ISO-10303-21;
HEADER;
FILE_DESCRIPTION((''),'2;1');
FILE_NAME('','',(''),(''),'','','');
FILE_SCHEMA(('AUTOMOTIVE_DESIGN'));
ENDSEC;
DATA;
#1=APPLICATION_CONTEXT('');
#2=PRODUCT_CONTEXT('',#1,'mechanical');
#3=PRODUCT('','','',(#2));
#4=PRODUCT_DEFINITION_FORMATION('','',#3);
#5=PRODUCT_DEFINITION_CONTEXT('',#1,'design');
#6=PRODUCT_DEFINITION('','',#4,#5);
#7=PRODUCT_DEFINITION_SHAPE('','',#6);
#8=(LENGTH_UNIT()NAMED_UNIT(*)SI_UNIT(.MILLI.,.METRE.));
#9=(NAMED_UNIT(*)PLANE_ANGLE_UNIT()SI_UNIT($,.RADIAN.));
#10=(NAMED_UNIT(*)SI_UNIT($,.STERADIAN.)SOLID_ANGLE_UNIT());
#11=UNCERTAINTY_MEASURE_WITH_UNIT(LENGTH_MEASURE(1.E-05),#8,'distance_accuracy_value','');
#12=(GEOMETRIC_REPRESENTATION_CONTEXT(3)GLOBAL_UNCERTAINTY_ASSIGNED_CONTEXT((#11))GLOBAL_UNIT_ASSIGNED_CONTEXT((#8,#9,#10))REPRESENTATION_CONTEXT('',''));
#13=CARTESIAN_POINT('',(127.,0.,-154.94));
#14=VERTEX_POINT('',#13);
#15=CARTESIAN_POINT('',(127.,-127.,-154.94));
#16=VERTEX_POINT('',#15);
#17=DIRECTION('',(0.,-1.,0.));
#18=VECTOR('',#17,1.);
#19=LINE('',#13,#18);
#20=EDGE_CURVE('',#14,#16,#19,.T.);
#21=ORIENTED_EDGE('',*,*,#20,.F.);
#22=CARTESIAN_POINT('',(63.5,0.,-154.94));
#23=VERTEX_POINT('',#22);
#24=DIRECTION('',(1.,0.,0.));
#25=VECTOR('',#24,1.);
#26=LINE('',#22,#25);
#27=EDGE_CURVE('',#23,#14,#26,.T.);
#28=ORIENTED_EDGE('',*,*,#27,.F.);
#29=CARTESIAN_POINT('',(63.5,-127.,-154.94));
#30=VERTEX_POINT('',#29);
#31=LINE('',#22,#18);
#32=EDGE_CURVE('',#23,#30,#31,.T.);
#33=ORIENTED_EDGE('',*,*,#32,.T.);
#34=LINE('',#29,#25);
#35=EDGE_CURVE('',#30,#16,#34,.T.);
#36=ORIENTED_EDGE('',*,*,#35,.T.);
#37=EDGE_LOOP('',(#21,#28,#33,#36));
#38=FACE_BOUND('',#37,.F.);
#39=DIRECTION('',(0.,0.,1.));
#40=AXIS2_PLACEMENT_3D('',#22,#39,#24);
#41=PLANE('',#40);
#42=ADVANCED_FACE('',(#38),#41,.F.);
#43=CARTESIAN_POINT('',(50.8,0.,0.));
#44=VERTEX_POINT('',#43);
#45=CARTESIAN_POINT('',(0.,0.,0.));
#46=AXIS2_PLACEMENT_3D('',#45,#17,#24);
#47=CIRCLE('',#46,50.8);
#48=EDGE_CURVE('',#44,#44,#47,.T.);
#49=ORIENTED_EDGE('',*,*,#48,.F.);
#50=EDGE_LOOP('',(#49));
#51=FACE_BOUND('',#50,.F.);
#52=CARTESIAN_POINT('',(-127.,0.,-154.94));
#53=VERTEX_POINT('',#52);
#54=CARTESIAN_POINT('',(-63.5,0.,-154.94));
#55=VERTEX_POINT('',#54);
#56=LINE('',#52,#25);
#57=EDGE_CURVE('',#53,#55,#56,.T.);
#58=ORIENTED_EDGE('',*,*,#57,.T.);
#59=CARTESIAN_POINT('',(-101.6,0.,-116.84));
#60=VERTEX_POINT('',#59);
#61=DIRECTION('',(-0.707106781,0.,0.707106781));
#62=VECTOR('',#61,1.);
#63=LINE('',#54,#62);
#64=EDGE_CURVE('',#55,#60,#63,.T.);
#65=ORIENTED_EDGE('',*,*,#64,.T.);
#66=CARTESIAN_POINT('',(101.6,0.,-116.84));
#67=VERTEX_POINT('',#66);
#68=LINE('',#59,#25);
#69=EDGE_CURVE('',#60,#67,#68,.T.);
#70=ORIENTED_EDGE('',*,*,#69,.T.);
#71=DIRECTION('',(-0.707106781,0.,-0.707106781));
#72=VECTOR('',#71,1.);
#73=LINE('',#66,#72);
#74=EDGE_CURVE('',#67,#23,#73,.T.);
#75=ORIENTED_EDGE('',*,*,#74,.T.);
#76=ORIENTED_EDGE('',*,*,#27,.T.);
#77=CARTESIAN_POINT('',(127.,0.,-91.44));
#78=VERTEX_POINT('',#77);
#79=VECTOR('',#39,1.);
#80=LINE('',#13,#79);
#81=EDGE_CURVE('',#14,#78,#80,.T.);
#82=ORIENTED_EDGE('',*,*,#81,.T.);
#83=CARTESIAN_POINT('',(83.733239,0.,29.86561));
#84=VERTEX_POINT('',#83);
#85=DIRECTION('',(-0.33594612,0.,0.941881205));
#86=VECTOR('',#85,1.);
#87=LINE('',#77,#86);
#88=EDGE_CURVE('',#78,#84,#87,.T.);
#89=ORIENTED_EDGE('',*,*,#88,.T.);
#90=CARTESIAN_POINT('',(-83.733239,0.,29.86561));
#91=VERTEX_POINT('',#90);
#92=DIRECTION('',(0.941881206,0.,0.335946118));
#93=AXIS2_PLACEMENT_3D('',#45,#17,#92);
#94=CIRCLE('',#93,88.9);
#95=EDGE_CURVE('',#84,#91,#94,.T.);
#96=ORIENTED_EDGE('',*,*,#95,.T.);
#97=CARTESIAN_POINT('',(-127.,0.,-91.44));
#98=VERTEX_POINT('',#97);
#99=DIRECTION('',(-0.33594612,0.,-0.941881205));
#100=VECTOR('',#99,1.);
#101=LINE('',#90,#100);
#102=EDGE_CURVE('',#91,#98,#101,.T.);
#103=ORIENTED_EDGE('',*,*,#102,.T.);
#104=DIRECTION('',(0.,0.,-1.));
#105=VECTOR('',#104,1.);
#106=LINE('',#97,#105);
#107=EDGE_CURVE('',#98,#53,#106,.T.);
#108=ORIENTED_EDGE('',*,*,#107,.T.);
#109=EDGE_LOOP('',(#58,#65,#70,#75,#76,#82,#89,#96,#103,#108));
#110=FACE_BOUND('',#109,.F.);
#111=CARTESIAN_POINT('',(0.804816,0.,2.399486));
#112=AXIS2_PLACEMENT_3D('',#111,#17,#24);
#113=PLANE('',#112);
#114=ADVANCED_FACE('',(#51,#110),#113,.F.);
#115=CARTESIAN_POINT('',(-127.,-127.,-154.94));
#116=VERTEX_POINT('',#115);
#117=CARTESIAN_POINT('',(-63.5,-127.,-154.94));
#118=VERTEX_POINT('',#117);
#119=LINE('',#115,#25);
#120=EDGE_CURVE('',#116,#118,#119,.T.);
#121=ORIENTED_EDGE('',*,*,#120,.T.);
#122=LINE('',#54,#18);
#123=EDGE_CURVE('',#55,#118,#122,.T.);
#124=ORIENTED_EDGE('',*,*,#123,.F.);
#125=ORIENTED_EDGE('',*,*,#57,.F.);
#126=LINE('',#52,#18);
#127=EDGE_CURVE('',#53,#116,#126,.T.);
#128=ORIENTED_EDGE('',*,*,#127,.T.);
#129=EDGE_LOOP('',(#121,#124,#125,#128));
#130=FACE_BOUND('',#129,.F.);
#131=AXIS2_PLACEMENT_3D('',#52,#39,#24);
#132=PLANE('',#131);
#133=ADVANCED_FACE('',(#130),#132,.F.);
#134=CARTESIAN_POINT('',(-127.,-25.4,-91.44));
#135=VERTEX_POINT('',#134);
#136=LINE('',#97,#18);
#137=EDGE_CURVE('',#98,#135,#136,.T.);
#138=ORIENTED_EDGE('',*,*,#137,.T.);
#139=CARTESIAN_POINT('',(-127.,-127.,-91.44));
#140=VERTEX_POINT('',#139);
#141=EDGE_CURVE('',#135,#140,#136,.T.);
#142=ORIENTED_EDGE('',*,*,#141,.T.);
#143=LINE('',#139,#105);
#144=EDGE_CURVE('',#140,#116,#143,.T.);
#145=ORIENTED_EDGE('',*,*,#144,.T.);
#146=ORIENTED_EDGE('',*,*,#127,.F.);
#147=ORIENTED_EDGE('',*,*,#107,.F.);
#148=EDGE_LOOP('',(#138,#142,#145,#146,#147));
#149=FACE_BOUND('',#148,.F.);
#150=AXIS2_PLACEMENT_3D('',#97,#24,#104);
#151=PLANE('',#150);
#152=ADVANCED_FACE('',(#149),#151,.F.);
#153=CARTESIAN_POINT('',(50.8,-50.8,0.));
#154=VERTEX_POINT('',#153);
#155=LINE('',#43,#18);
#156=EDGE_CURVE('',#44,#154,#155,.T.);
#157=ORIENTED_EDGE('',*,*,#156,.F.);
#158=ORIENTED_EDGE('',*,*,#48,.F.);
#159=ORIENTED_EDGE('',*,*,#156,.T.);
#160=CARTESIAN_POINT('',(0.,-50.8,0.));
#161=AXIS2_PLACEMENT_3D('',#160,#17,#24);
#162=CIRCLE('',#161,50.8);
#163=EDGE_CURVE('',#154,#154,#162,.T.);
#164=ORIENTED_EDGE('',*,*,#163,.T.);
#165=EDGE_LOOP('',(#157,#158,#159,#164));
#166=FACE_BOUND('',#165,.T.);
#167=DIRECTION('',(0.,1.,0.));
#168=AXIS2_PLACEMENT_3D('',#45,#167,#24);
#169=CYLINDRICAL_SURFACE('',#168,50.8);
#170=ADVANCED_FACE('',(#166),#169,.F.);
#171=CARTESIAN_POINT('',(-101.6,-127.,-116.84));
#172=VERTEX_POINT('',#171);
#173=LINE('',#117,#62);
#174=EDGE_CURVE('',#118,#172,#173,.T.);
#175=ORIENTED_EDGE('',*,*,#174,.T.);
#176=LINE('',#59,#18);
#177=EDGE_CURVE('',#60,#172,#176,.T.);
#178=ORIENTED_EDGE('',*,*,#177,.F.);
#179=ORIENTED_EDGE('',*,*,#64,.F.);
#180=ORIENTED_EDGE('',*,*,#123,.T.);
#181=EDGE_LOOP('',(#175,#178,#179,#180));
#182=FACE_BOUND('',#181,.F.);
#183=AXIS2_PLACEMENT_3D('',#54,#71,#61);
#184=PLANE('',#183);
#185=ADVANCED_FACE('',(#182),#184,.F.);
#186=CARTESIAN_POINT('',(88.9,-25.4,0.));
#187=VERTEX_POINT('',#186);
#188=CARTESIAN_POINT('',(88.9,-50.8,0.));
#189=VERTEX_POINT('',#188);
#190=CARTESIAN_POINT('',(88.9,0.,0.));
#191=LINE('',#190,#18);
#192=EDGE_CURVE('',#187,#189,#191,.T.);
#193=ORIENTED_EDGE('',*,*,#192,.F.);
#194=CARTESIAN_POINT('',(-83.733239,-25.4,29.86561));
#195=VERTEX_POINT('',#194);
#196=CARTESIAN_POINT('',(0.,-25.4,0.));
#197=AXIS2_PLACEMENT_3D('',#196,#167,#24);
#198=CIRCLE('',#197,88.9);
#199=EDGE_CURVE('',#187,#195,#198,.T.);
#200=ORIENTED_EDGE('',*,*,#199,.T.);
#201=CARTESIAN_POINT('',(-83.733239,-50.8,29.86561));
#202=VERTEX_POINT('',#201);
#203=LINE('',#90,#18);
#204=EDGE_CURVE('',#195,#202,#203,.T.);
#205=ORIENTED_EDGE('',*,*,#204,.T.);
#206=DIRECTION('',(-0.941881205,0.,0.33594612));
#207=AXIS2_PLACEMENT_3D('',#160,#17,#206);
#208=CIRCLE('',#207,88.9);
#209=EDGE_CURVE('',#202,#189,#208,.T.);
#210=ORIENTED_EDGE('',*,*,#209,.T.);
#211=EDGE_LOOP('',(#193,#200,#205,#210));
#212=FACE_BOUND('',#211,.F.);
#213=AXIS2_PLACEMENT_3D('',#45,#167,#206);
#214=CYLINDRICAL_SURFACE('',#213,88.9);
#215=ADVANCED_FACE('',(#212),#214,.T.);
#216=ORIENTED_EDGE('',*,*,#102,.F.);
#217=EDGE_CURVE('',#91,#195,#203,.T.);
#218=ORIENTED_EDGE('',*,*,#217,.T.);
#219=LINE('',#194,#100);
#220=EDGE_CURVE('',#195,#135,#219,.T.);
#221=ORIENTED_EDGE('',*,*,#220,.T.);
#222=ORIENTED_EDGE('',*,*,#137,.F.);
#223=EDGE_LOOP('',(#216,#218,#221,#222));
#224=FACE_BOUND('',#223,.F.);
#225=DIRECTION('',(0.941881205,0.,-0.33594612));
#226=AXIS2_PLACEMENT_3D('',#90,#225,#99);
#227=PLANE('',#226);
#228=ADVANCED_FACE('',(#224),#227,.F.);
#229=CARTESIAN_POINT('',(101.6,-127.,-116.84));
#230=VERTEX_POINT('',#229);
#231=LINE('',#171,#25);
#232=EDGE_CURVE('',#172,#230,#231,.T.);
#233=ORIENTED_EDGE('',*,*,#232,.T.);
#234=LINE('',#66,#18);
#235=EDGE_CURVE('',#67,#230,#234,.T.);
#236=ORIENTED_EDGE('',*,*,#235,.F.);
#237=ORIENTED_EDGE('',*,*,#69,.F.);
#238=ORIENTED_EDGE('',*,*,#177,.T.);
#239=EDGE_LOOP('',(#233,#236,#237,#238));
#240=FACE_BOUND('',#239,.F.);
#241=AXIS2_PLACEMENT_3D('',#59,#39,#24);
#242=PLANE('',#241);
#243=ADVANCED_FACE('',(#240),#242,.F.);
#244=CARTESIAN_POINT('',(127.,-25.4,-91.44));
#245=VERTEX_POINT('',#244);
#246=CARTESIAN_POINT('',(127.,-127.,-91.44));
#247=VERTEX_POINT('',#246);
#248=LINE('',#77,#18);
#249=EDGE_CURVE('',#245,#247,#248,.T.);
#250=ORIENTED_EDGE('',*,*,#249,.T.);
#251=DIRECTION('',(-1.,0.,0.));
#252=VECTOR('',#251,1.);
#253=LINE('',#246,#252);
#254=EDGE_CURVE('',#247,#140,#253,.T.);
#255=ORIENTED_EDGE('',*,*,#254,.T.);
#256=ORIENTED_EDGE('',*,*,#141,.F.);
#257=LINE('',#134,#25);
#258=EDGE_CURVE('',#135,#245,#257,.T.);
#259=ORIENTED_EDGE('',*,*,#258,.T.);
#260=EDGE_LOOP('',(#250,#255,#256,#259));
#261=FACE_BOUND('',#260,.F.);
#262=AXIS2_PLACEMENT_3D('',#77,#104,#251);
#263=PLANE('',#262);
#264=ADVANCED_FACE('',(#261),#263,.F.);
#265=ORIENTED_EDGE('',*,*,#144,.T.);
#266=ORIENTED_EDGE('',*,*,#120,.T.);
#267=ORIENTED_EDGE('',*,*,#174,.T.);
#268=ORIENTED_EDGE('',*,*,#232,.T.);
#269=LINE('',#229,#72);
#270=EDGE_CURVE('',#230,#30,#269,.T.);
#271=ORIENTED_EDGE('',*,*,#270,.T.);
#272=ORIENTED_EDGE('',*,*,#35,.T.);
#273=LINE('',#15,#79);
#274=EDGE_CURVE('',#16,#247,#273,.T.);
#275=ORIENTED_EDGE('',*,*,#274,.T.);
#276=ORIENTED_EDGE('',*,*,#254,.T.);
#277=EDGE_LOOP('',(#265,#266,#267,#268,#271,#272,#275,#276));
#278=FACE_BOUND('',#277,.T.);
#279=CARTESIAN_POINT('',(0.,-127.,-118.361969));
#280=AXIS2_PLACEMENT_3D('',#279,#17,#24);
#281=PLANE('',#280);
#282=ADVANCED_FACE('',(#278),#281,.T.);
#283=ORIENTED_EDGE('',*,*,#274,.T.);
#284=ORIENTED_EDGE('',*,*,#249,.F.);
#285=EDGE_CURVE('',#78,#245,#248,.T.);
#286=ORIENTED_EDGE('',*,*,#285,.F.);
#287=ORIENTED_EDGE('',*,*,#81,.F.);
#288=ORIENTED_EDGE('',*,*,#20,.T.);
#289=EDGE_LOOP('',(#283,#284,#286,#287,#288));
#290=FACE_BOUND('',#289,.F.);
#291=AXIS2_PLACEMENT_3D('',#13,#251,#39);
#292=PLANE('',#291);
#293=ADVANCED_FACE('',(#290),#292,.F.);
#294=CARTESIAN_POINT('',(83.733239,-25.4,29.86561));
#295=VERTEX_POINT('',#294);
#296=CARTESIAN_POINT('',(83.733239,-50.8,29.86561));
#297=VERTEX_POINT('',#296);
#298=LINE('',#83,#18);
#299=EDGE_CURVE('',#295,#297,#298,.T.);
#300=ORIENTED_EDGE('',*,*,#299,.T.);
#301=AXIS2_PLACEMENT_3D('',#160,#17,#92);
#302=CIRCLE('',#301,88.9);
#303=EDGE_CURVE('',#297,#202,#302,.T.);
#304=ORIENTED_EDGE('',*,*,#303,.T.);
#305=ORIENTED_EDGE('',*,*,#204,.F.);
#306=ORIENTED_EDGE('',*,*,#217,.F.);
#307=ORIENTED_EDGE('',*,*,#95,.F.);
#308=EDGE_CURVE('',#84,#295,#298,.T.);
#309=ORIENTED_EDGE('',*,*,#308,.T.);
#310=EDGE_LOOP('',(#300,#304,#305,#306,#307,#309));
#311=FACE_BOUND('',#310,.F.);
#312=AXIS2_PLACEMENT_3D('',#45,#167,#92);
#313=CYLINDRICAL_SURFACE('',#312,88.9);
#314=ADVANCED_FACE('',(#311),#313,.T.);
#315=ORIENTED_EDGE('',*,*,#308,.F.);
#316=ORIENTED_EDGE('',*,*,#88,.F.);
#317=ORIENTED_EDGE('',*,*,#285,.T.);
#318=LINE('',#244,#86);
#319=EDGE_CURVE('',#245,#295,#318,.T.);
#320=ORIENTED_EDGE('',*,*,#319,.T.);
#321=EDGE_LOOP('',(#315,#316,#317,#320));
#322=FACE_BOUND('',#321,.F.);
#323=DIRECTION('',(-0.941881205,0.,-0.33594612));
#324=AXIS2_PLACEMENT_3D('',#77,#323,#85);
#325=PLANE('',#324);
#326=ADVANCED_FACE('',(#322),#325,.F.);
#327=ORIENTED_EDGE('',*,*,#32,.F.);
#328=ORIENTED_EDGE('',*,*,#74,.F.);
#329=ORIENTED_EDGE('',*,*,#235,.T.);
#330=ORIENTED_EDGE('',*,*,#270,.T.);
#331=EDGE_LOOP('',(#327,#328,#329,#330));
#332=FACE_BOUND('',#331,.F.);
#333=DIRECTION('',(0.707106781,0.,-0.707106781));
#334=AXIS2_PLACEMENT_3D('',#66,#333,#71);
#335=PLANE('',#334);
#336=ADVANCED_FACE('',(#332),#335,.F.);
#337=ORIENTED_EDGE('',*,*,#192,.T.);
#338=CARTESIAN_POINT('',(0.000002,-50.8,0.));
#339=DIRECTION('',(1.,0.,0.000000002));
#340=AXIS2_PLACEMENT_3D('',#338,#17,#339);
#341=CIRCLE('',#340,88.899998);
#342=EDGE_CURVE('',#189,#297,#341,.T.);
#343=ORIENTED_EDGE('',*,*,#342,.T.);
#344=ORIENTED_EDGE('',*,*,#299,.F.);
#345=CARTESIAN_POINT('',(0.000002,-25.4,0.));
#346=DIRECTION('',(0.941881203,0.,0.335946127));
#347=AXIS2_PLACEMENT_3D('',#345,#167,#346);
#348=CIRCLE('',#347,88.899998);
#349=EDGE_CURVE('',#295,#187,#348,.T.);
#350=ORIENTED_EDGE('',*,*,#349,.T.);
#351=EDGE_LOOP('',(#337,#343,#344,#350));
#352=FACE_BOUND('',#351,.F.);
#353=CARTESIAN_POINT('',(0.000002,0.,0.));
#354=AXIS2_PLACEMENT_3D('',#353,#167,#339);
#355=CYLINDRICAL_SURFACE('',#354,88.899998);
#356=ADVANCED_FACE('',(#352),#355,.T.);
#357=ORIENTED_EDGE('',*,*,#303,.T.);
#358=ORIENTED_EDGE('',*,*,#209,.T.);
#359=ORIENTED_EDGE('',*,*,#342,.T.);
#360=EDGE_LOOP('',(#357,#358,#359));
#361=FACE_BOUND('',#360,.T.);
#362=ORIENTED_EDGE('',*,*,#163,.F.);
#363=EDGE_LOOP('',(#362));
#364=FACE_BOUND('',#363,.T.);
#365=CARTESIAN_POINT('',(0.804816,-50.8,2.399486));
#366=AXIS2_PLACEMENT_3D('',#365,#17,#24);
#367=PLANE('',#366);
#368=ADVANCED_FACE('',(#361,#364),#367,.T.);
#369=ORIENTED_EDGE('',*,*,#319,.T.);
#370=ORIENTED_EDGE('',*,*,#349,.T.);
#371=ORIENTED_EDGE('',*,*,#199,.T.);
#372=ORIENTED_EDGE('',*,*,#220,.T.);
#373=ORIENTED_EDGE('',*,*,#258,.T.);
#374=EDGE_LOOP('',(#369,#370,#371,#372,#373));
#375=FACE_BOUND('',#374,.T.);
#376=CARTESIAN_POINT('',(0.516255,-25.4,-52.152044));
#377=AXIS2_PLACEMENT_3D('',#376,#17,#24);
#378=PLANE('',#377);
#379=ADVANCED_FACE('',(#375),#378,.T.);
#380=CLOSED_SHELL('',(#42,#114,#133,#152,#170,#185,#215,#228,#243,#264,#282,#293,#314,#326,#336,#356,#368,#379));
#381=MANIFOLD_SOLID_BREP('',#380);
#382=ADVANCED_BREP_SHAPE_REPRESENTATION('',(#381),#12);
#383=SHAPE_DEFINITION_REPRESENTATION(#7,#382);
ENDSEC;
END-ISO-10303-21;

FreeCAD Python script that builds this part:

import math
import FreeCAD as App
import Part
import Sketcher
from FreeCAD import Vector
Q = App.Units.Quantity


def add_polygon(sketch, points):
    """Adds a closed chain of lines whose ends are joined by coincident constraints."""
    first, n = sketch.GeometryCount, len(points)
    for a, b in zip(points, points[1:] + points[:1]):
        sketch.addGeometry(Part.LineSegment(App.Vector(*a, 0), App.Vector(*b, 0)), False)
    for i in range(n):
        sketch.addConstraint(Sketcher.Constraint("Coincident", first + i, 2, first + (i + 1) % n, 1))

doc = App.newDocument("Part")
body = doc.addObject("PartDesign::Body", "Body")

# Sketch on XZ plane
sketch1 = body.newObject("Sketcher::SketchObject", "Sketch")
sketch1.AttachmentSupport = (doc.getObject("XZ_Plane"), [""])
sketch1.MapMode = "FlatFace"
add_polygon(sketch1, [(127, -155), (127, -91), (-127, -91), (-127, -155), (-64, -155), (-102, -117), (102, -117), (64, -155)])  # lines 0-7
sketch1.addConstraint(Sketcher.Constraint("Vertical", 0))
sketch1.addConstraint(Sketcher.Constraint("Horizontal", 1))
sketch1.addConstraint(Sketcher.Constraint("Vertical", 2))
sketch1.addConstraint(Sketcher.Constraint("Horizontal", 3))
sketch1.addConstraint(Sketcher.Constraint("Horizontal", 5))
sketch1.addConstraint(Sketcher.Constraint("Horizontal", 7))
sketch1.addConstraint(Sketcher.Constraint("Symmetric", 3, 2, 6, 2, -2))
sketch1.addConstraint(Sketcher.Constraint("Perpendicular", 4, 6))
sketch1.addConstraint(Sketcher.Constraint("Equal", 3, 7))
sketch1.addConstraint(Sketcher.Constraint("Equal", 7, 0))
sketch1.addConstraint(Sketcher.Constraint("Equal", 4, 6))
sketch1.addConstraint(Sketcher.Constraint("DistanceX", 1, 2, 1, 1, Q("10 in")))
sketch1.addConstraint(Sketcher.Constraint("DistanceX", 5, 1, 5, 2, Q("8 in")))
sketch1.addConstraint(Sketcher.Constraint("DistanceX", 3, 1, 3, 2, Q("2.5 in")))
sketch1.addConstraint(Sketcher.Constraint("DistanceY", 0, 2, -1, 1, Q("3.6 in")))
pad1 = body.newObject("PartDesign::Pad", "Pad")
pad1.Profile = sketch1
pad1.Length = Q("5 in")

# Sketch on XZ plane
sketch2 = body.newObject("Sketcher::SketchObject", "Sketch001")
sketch2.AttachmentSupport = (doc.getObject("XZ_Plane"), [""])
sketch2.MapMode = "FlatFace"
sketch2.addGeometry(Part.ArcOfCircle(Part.Circle(Vector(0, 0, 0), Vector(0, 0, 1), 89), math.radians(0), math.radians(19.63)), False)
sketch2.addGeometry(Part.ArcOfCircle(Part.Circle(Vector(0, 0, 0), Vector(0, 0, 1), 89), math.radians(160), math.radians(360)), False)
sketch2.addGeometry(Part.LineSegment(Vector(-84, 30, 0), Vector(-127, -91, 0)), False)
sketch2.addGeometry(Part.LineSegment(Vector(-127, -91, 0), Vector(127, -91, 0)), False)
sketch2.addGeometry(Part.LineSegment(Vector(127, -91, 0), Vector(84, 30, 0)), False)
sketch2.addConstraint(Sketcher.Constraint("Tangent", 0, 1, 1, 2))
sketch2.addConstraint(Sketcher.Constraint("Tangent", 1, 1, 2, 1))
sketch2.addConstraint(Sketcher.Constraint("Coincident", 2, 2, 3, 1))
sketch2.addConstraint(Sketcher.Constraint("Coincident", 3, 2, 4, 1))
sketch2.addConstraint(Sketcher.Constraint("Tangent", 4, 2, 0, 2))
sketch2.addConstraint(Sketcher.Constraint("Horizontal", 3))
sketch2.addConstraint(Sketcher.Constraint("Coincident", 0, 3, -1, 1))
sketch2.addConstraint(Sketcher.Constraint("Equal", 0, 1))
sketch2.addConstraint(Sketcher.Constraint("PointOnObject", 0, 1, -1))
sketch2.addConstraint(Sketcher.Constraint("Horizontal", 1, 1, 4, 2))
sketch2.addConstraint(Sketcher.Constraint("Radius", 0, Q("3.4999999 in")))
sketch2.addConstraint(Sketcher.Constraint("DistanceX", 3, 1, 3, 2, Q("10 in")))
sketch2.addConstraint(Sketcher.Constraint("DistanceY", 2, 2, -1, 1, Q("3.6 in")))
pad2 = body.newObject("PartDesign::Pad", "Pad001")
pad2.Profile = sketch2
pad2.Length = Q("1 in")

# Sketch on XZ plane
sketch3 = body.newObject("Sketcher::SketchObject", "Sketch002")
sketch3.AttachmentSupport = (doc.getObject("XZ_Plane"), [""])
sketch3.MapMode = "FlatFace"
sketch3.addGeometry(Part.ArcOfCircle(Part.Circle(Vector(0, 0, 0), Vector(0, 0, 1), 89), math.radians(160), math.radians(360)), False)
sketch3.addGeometry(Part.ArcOfCircle(Part.Circle(Vector(0, 0, 0), Vector(0, 0, 1), 89), math.radians(0), math.radians(19.63)), False)
sketch3.addGeometry(Part.ArcOfCircle(Part.Circle(Vector(0, 0, 0), Vector(0, 0, 1), 89), math.radians(20), math.radians(160)), False)
sketch3.addGeometry(Part.Circle(Vector(0, 0, 0), Vector(0, 0, 1), 51), False)
sketch3.addConstraint(Sketcher.Constraint("Tangent", 0, 2, 1, 1))
sketch3.addConstraint(Sketcher.Constraint("Tangent", 1, 2, 2, 1))
sketch3.addConstraint(Sketcher.Constraint("Tangent", 2, 2, 0, 1))
sketch3.addConstraint(Sketcher.Constraint("Coincident", 0, 3, -1, 1))
sketch3.addConstraint(Sketcher.Constraint("Coincident", 3, 3, -1, 1))
sketch3.addConstraint(Sketcher.Constraint("PointOnObject", 0, 2, -1))
sketch3.addConstraint(Sketcher.Constraint("Horizontal", 1, 2, 2, 2))
sketch3.addConstraint(Sketcher.Constraint("Diameter", 3, Q("4 in")))
sketch3.addConstraint(Sketcher.Constraint("Radius", 0, Q("3.5 in")))
sketch3.addConstraint(Sketcher.Constraint("DistanceX", -1, 1, 1, 2, Q("83.733239 mm")))
pad3 = body.newObject("PartDesign::Pad", "Pad002")
pad3.Profile = sketch3
pad3.Length = Q("2 in")

doc.recompute()
